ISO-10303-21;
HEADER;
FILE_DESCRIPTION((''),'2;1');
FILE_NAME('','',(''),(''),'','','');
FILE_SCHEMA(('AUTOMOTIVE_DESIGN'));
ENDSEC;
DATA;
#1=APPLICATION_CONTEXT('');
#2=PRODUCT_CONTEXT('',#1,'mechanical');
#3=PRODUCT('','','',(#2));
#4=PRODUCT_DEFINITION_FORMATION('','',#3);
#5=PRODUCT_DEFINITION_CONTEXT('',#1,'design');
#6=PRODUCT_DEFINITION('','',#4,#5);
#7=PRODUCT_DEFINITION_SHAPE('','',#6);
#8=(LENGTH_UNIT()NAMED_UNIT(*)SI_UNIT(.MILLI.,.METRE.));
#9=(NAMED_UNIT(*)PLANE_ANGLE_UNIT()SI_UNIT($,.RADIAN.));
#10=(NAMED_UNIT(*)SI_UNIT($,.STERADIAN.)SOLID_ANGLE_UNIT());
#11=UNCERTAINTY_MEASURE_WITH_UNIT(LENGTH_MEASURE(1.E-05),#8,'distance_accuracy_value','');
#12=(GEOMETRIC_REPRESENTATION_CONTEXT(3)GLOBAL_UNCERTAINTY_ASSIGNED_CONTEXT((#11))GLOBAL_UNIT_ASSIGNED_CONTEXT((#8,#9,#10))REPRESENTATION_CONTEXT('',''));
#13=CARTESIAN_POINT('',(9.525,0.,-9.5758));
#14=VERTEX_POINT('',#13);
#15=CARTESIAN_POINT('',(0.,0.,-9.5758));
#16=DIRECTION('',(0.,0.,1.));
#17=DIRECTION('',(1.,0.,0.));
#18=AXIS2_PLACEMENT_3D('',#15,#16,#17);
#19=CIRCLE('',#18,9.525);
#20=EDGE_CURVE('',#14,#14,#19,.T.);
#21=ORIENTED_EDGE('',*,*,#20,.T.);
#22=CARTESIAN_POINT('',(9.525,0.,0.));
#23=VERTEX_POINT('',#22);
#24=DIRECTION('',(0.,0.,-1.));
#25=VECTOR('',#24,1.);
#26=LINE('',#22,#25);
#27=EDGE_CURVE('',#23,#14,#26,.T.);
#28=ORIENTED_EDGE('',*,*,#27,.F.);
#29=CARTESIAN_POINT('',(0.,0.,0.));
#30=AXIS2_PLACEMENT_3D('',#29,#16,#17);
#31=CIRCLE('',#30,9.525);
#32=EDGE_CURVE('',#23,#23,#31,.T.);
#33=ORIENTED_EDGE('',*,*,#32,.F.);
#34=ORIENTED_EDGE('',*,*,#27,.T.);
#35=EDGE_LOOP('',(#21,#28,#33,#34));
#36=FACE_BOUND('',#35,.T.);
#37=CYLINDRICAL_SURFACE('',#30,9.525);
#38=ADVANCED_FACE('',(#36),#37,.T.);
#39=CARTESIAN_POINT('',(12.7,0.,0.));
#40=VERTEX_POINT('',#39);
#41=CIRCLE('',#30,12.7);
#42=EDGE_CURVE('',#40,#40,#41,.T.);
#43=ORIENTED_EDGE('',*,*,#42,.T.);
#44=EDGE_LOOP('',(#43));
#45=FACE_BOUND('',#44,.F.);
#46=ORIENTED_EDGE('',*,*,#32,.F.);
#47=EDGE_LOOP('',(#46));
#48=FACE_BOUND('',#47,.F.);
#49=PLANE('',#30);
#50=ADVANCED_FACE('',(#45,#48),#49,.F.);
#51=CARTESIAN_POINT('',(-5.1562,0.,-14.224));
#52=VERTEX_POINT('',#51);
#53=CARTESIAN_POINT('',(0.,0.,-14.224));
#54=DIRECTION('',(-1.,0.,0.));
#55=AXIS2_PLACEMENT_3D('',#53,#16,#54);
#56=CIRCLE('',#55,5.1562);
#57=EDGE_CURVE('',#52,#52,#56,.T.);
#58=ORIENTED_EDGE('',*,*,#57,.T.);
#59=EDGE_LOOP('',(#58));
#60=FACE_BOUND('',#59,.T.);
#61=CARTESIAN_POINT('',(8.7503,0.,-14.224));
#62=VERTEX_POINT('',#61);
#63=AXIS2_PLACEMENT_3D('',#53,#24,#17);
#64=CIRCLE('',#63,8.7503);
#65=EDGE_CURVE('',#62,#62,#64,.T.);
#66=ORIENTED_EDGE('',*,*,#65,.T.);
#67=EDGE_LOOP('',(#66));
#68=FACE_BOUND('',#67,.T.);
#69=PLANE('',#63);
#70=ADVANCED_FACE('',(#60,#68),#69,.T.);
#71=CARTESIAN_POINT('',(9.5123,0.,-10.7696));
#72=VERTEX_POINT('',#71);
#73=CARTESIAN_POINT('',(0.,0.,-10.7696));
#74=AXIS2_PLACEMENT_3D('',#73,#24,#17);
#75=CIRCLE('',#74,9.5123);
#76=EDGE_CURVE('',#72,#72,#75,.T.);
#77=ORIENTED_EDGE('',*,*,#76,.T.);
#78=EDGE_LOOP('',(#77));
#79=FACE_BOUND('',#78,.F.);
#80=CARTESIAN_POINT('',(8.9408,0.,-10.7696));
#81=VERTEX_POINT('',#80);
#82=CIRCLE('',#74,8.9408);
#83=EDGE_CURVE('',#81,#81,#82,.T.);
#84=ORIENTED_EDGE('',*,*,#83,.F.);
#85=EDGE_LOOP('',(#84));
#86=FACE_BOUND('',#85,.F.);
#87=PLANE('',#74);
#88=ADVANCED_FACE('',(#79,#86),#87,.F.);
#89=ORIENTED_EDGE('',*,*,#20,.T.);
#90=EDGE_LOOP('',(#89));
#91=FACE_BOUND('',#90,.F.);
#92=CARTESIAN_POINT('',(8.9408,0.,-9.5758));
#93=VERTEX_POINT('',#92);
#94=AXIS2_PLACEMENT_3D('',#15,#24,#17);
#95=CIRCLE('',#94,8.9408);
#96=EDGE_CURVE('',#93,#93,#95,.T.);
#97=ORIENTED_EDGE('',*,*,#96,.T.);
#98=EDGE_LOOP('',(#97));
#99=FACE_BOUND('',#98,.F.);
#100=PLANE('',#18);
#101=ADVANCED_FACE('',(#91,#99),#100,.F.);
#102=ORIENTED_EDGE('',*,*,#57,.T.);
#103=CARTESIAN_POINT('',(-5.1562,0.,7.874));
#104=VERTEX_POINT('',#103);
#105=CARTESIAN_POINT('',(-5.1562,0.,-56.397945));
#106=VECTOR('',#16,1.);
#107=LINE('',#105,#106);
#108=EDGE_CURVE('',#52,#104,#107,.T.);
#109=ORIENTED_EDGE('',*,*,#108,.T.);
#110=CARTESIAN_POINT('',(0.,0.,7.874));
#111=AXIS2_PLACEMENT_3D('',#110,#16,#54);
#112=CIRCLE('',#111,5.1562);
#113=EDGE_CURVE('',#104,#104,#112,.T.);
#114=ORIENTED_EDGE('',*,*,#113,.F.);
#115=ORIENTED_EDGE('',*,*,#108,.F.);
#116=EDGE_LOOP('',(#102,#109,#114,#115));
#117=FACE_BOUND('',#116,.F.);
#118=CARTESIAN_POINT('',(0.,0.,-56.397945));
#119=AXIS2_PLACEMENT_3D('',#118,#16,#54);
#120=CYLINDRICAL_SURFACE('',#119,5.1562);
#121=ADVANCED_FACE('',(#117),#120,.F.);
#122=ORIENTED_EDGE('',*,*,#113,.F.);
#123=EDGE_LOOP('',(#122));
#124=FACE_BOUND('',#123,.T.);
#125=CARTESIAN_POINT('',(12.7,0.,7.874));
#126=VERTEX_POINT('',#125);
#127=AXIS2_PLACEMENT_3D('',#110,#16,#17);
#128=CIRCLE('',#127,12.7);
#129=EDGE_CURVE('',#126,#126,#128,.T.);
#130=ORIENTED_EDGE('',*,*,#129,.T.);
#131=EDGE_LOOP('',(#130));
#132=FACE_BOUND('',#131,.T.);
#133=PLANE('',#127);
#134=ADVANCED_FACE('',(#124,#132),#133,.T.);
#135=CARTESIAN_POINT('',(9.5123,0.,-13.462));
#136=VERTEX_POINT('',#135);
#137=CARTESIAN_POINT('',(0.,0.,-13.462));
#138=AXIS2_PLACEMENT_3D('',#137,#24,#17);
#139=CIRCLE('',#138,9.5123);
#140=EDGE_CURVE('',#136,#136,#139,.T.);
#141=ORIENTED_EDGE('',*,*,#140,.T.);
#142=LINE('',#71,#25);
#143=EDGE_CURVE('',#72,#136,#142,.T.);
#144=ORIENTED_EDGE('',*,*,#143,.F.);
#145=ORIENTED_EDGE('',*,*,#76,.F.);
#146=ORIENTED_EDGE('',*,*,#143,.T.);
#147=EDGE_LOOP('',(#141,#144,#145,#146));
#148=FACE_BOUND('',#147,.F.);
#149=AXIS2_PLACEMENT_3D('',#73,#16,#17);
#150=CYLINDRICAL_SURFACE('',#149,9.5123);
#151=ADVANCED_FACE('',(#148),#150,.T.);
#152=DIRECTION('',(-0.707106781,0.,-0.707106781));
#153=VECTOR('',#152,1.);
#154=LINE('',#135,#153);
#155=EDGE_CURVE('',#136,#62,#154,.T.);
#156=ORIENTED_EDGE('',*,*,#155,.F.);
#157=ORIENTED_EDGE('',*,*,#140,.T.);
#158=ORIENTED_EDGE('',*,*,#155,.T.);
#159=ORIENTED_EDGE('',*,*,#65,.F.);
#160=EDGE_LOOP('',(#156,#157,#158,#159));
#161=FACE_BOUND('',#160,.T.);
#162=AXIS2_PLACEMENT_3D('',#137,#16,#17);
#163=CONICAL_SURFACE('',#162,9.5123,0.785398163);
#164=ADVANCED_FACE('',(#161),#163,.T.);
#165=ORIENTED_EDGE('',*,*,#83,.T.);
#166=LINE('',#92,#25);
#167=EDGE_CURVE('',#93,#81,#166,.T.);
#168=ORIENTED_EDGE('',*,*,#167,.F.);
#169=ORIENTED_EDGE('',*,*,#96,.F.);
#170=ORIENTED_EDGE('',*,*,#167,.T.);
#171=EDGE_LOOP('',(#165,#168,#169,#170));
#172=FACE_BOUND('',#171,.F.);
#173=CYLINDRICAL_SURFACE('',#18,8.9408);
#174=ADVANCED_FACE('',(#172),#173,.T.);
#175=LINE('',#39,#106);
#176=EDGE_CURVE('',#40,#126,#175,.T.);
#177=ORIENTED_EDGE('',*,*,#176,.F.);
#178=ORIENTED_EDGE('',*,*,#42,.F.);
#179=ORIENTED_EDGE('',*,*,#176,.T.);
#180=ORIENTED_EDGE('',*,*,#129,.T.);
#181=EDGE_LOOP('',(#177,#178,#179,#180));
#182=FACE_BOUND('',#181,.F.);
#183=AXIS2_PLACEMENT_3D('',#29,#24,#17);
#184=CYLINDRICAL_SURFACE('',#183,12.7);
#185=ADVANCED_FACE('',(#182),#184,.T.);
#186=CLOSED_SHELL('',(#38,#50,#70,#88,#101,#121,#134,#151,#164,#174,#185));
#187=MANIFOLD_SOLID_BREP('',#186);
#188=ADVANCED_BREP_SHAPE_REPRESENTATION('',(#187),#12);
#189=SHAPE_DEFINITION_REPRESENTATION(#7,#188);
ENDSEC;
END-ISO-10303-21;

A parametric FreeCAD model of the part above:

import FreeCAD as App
import Part
import Sketcher

V = App.Vector
Q = App.Units.Quantity


def edges_at(feature, points):
    """Names of the edges that pass closest to the given points."""
    edges = feature.Shape.Edges
    near = lambda p: min(range(len(edges)), key=lambda i: edges[i].distToShape(Part.Vertex(*p))[0])
    return sorted({f"Edge{near(p) + 1}" for p in points})

doc = App.newDocument("Part")
body = doc.addObject("PartDesign::Body", "Body")

# Sketch on XY plane
sketch1 = body.newObject("Sketcher::SketchObject", "Sketch")
sketch1.AttachmentSupport = (doc.getObject("XY_Plane"), [""])
sketch1.MapMode = "FlatFace"
sketch1.addGeometry(Part.Circle(V(0, 0, 0), V(0, 0, 1), 13), False)
sketch1.addConstraint([
    Sketcher.Constraint("Coincident", 0, 3, -1, 1),
    Sketcher.Constraint("Diameter", 0, Q("1 in")),
])
pad1 = body.newObject("PartDesign::Pad", "Pad")
pad1.Profile = sketch1
pad1.Length = Q("0.31 in")

# Sketch on XY plane
sketch2 = body.newObject("Sketcher::SketchObject", "Sketch001")
sketch2.AttachmentSupport = (doc.getObject("XY_Plane"), [""])
sketch2.MapMode = "FlatFace"
sketch2.addGeometry(Part.Circle(V(0, 0, 0), V(0, 0, 1), 10), False)
sketch2.addConstraint([
    Sketcher.Constraint("Coincident", 0, 3, -1, 1),
    Sketcher.Constraint("Diameter", 0, Q("0.75 in")),
])
pad2 = body.newObject("PartDesign::Pad", "Pad001")
pad2.Profile = sketch2
pad2.Length = Q("0.377 in")
pad2.Reversed = True

# Sketch on XY plane
sketch3 = body.newObject("Sketcher::SketchObject", "Sketch002")
sketch3.AttachmentSupport = (doc.getObject("XY_Plane"), [""])
sketch3.MapMode = "FlatFace"
sketch3.AttachmentOffset = App.Placement(V(0, 0, -0.377 * 25.4), App.Rotation())
sketch3.addGeometry(Part.Circle(V(0, 0, 0), V(0, 0, 1), 9), False)
sketch3.addConstraint([
    Sketcher.Constraint("Coincident", 0, 3, -1, 1),
    Sketcher.Constraint("Diameter", 0, Q("0.704 in")),
])
pad3 = body.newObject("PartDesign::Pad", "Pad002")
pad3.Profile = sketch3
pad3.Length = Q("0.047 in")
pad3.Reversed = True

# Sketch on XY plane
sketch4 = body.newObject("Sketcher::SketchObject", "Sketch003")
sketch4.AttachmentSupport = (doc.getObject("XY_Plane"), [""])
sketch4.MapMode = "FlatFace"
sketch4.AttachmentOffset = App.Placement(V(0, 0, -0.424 * 25.4), App.Rotation())
sketch4.addGeometry(Part.Circle(V(0, 0, 0), V(0, 0, 1), 10), False)
sketch4.addConstraint([
    Sketcher.Constraint("Coincident", 0, 3, -1, 1),
    Sketcher.Constraint("Diameter", 0, Q("0.749 in")),
])
pad4 = body.newObject("PartDesign::Pad", "Pad003")
pad4.Profile = sketch4
pad4.Length = Q("0.136 in")
pad4.Reversed = True
doc.recompute()

chamfer = body.newObject("PartDesign::Chamfer", "Chamfer")
chamfer.Base = (pad4, edges_at(pad4, [(-9.512, 0, -14.224)]))
chamfer.Size = Q("0.03 in")

# Sketch on XY plane
sketch5 = body.newObject("Sketcher::SketchObject", "Sketch004")
sketch5.AttachmentSupport = (doc.getObject("XY_Plane"), [""])
sketch5.MapMode = "FlatFace"
sketch5.AttachmentOffset = App.Placement(V(0, 0, -0.56 * 25.4), App.Rotation())
sketch5.addGeometry(Part.Circle(V(0, 0, 0), V(0, 0, 1), 5), False)
sketch5.addConstraint([
    Sketcher.Constraint("Coincident", 0, 3, -1, 1),
    Sketcher.Constraint("Diameter", 0, Q("0.406 in")),
])
doc.recompute()
hole = body.newObject("PartDesign::Hole", "Hole")
hole.Profile = sketch5
hole.ThreadType = "None"
hole.Diameter = Q("0.406 in")
hole.DepthType = "ThroughAll"
hole.Reversed = True

doc.recompute()
